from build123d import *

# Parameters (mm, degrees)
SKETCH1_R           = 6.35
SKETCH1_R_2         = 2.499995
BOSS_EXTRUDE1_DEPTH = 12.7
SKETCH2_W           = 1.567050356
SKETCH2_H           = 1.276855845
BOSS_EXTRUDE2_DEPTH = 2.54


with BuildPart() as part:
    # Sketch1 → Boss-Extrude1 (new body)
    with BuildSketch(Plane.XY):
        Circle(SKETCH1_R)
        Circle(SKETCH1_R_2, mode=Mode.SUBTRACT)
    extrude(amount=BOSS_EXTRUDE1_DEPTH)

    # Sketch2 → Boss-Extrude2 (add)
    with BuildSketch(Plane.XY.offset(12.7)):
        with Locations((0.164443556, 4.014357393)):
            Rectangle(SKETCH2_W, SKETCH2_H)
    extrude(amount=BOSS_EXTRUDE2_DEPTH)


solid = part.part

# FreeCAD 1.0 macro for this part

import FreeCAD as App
import Part
import Sketcher
from FreeCAD import Vector
Q = App.Units.Quantity


def add_polygon(sketch, points):
    """Adds a closed chain of lines whose ends are joined by coincident constraints."""
    first, n = sketch.GeometryCount, len(points)
    for a, b in zip(points, points[1:] + points[:1]):
        sketch.addGeometry(Part.LineSegment(App.Vector(*a, 0), App.Vector(*b, 0)), False)
    for i in range(n):
        sketch.addConstraint(Sketcher.Constraint("Coincident", first + i, 2, first + (i + 1) % n, 1))

doc = App.newDocument("Part")
body = doc.addObject("PartDesign::Body", "Body")

# Sketch on XY plane
sketch1 = body.newObject("Sketcher::SketchObject", "Sketch")
sketch1.AttachmentSupport = (doc.getObject("XY_Plane"), [""])
sketch1.MapMode = "FlatFace"
sketch1.addGeometry([
    Part.Circle(Vector(0, 0, 0), Vector(0, 0, 1), 6.35),
    Part.Circle(Vector(0, 0, 0), Vector(0, 0, 1), 2.499995),
], False)
sketch1.addConstraint([
    Sketcher.Constraint("Coincident", 0, 3, -1, 1),
    Sketcher.Constraint("Coincident", 1, 3, -1, 1),
    Sketcher.Constraint("Diameter", 0, Q("0.5 in")),
    Sketcher.Constraint("Diameter", 1, 4.99999),
])
pad1 = body.newObject("PartDesign::Pad", "Pad")
pad1.Profile = sketch1
pad1.Length = Q("0.5 in")

# Sketch on XY plane
sketch2 = body.newObject("Sketcher::SketchObject", "Sketch001")
sketch2.AttachmentSupport = (doc.getObject("XY_Plane"), [""])
sketch2.MapMode = "FlatFace"
sketch2.AttachmentOffset = App.Placement(Vector(0, 0, 0.5 * 25.4), App.Rotation())
add_polygon(sketch2, [(-0.619082, 4.652785), (-0.619082, 3.375929), (0.947969, 3.375929), (0.947969, 4.652785)])  # lines 0-3
sketch2.addConstraint([
    Sketcher.Constraint("Vertical", 0),
    Sketcher.Constraint("Horizontal", 1),
    Sketcher.Constraint("Vertical", 2),
    Sketcher.Constraint("Horizontal", 3),
    Sketcher.Constraint("DistanceX", 1, 1, 1, 2, 1.56705),
    Sketcher.Constraint("DistanceY", 0, 2, 0, 1, 1.276856),
    Sketcher.Constraint("DistanceX", 0, 2, -1, 1, 0.619082),
    Sketcher.Constraint("DistanceY", -1, 1, 0, 2, 3.375929),
])
pad2 = body.newObject("PartDesign::Pad", "Pad001")
pad2.Profile = sketch2
pad2.Length = Q("0.1 in")

doc.recompute()
